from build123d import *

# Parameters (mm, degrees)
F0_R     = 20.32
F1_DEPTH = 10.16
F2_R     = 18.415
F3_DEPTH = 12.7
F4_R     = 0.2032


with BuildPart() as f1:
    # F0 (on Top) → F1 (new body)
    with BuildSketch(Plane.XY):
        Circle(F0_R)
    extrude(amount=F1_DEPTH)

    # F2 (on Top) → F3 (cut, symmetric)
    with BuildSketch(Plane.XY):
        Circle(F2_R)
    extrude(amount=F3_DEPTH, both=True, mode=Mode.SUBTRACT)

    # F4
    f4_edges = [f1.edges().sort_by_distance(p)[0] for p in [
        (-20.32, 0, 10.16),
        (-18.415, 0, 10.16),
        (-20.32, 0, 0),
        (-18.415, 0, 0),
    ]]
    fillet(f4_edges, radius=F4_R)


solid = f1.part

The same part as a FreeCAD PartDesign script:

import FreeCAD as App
import Part
import Sketcher
Q = App.Units.Quantity


def edges_at(feature, points):
    """Names of the edges that pass closest to the given points."""
    edges = feature.Shape.Edges
    near = lambda p: min(range(len(edges)), key=lambda i: edges[i].distToShape(Part.Vertex(*p))[0])
    return sorted({f"Edge{near(p) + 1}" for p in points})

doc = App.newDocument("Part")
body = doc.addObject("PartDesign::Body", "Body")

sketch1 = body.newObject("Sketcher::SketchObject", "Sketch")
sketch1.AttachmentSupport = (doc.getObject("XY_Plane"), [""])
sketch1.MapMode = "FlatFace"
sketch1.addGeometry(Part.Circle(App.Vector(0, 0, 0), App.Vector(0, 0, 1), 20), False)
sketch1.addConstraint([
    Sketcher.Constraint("Coincident", 0, 3, -1, 1),
    Sketcher.Constraint("Diameter", 0, Q("1.6 in")),
])
pad1 = body.newObject("PartDesign::Pad", "Pad")
pad1.Profile = sketch1
pad1.Length = Q("0.4 in")

sketch2 = body.newObject("Sketcher::SketchObject", "Sketch001")
sketch2.AttachmentSupport = (doc.getObject("XY_Plane"), [""])
sketch2.MapMode = "FlatFace"
sketch2.addGeometry(Part.Circle(App.Vector(0, 0, 0), App.Vector(0, 0, 1), 18), False)
sketch2.addConstraint([
    Sketcher.Constraint("Coincident", 0, 3, -1, 1),
    Sketcher.Constraint("Diameter", 0, Q("1.45 in")),
])
pocket1 = body.newObject("PartDesign::Pocket", "Pocket")
pocket1.Profile = sketch2
pocket1.Length = Q("1 in")
pocket1.Midplane = True
doc.recompute()

fillet = body.newObject("PartDesign::Fillet", "Fillet")
fillet.Base = (pocket1, edges_at(pocket1, [
    (-20.32, 0, 10.16),
    (-18.415, 0, 10.16),
    (-20.32, 0, 0),
    (-18.415, 0, 0),
]))
fillet.Radius = Q("0.008 in")

doc.recompute()
